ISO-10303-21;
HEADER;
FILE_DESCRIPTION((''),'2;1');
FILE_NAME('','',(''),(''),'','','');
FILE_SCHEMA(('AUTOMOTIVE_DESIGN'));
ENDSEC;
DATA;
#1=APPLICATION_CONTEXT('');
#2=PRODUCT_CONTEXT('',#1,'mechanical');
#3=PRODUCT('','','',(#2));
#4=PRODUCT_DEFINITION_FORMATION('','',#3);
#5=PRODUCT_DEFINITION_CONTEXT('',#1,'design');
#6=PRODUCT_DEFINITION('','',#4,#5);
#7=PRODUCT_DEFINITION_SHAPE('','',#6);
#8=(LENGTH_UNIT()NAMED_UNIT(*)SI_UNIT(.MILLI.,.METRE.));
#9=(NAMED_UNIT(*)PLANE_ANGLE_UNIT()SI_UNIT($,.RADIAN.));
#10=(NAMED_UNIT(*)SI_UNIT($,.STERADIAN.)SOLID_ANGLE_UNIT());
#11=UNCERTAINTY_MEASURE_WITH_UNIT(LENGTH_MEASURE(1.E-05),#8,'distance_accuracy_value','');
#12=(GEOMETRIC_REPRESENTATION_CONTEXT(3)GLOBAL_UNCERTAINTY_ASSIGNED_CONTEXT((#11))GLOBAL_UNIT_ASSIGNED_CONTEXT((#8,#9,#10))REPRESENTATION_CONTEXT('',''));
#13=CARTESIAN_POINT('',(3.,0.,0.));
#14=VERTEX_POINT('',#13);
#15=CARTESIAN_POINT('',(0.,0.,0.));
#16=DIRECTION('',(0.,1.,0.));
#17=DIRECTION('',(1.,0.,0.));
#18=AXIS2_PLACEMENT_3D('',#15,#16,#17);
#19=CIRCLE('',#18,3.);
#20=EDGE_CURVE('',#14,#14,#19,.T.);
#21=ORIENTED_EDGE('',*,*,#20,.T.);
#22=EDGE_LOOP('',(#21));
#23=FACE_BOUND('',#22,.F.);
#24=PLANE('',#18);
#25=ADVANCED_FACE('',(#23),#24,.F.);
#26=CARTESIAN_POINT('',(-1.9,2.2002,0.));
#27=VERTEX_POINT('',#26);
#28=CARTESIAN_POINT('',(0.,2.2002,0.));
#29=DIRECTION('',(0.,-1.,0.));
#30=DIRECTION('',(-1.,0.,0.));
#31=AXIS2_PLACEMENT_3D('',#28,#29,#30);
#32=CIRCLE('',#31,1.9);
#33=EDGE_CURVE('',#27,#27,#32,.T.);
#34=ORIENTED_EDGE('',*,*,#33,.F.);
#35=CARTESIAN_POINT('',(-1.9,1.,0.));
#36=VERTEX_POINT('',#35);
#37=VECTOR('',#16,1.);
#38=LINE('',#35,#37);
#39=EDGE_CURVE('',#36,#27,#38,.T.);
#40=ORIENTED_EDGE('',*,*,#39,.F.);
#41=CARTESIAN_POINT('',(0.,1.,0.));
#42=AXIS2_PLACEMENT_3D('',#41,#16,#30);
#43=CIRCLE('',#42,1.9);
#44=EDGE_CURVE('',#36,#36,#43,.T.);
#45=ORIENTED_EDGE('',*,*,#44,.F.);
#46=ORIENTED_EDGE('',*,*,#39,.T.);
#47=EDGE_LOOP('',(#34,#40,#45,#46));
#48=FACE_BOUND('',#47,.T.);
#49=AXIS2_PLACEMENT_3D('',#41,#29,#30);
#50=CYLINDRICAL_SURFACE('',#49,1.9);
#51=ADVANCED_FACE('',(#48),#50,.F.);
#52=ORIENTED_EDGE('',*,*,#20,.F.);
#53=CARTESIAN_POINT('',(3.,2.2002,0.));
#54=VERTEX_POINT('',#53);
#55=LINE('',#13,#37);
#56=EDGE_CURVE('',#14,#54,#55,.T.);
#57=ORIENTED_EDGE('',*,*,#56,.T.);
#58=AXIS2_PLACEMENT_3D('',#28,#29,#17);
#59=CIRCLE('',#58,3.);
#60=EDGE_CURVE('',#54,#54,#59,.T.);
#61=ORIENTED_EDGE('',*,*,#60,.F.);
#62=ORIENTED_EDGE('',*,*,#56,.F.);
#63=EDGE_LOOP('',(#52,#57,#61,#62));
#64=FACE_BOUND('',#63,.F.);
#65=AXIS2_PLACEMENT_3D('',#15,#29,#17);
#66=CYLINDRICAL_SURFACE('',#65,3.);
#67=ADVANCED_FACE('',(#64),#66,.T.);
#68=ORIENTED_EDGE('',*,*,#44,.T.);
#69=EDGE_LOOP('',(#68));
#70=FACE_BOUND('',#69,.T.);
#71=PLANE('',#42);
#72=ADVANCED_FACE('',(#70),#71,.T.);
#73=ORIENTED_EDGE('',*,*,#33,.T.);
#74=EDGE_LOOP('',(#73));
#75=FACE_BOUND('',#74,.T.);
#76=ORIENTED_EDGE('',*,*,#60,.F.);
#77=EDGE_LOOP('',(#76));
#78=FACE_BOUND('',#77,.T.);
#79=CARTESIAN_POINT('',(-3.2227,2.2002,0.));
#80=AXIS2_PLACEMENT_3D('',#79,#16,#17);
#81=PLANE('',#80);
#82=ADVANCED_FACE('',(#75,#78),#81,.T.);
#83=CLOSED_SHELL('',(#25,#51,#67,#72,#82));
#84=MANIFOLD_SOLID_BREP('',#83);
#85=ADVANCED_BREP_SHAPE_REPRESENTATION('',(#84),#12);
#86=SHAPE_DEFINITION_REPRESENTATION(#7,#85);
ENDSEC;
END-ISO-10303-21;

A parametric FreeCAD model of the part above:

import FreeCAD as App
import Part
import Sketcher

V = App.Vector
Q = App.Units.Quantity


def add_polygon(sketch, points):
    """Adds a closed chain of lines whose ends are joined by coincident constraints."""
    first, n = sketch.GeometryCount, len(points)
    for a, b in zip(points, points[1:] + points[:1]):
        sketch.addGeometry(Part.LineSegment(App.Vector(*a, 0), App.Vector(*b, 0)), False)
    for i in range(n):
        sketch.addConstraint(Sketcher.Constraint("Coincident", first + i, 2, first + (i + 1) % n, 1))

doc = App.newDocument("Part")
body = doc.addObject("PartDesign::Body", "Body")

sketch1 = doc.addObject("Sketcher::SketchObject", "Sketch")
body.addObject(sketch1)
sketch1.AttachmentSupport = (doc.XZ_Plane, [""])
sketch1.MapMode = "FlatFace"
sketch1.addGeometry(Part.Circle(V(0, 0, 0), V(0, 0, 1), 3), False)
sketch1.addConstraint([
    Sketcher.Constraint("Coincident", 0, 3, -1, 1),
    Sketcher.Constraint("Diameter", 0, Q("6 mm")),
])
pad1 = doc.addObject("PartDesign::Pad", "Pad")
body.addObject(pad1)
pad1.Profile = sketch1
pad1.Length = 3
pad1.Reversed = True

sketch2 = doc.addObject("Sketcher::SketchObject", "Sketch001")
body.addObject(sketch2)
sketch2.AttachmentSupport = (doc.XZ_Plane, [""])
sketch2.MapMode = "FlatFace"
sketch2.AttachmentOffset = App.Placement(V(0, 0, -3), App.Rotation())
sketch2.addGeometry(Part.Circle(V(0, 0, 0), V(0, 0, 1), 1.9), False)
sketch2.addConstraint([
    Sketcher.Constraint("Coincident", 0, 3, -1, 1),
    Sketcher.Constraint("Diameter", 0, Q("3.8 mm")),
])
pocket1 = doc.addObject("PartDesign::Pocket", "Pocket")
body.addObject(pocket1)
pocket1.Profile = sketch2
pocket1.Length = 2
pocket1.Reversed = True

sketch3 = doc.addObject("Sketcher::SketchObject", "Sketch002")
body.addObject(sketch3)
sketch3.AttachmentSupport = (doc.XZ_Plane, [""])
sketch3.MapMode = "FlatFace"
sketch3.AttachmentOffset = App.Placement(V(0, 0, -1), App.Rotation())
sketch3.addGeometry([
    Part.Circle(V(0, 0, 0), V(0, 0, 1), 2),
    Part.Circle(V(0, 0, 0), V(0, 0, 1), 1.9),
], False)
sketch3.addConstraint([
    Sketcher.Constraint("Coincident", 0, 3, -1, 1),
    Sketcher.Constraint("Coincident", 1, 3, -1, 1),
    Sketcher.Constraint("Diameter", 0, Q("4 mm")),
    Sketcher.Constraint("Diameter", 1, Q("3.8 mm")),
])
pocket2 = doc.addObject("PartDesign::Pocket", "Pocket001")
body.addObject(pocket2)
pocket2.Profile = sketch3
pocket2.Length = 2.2

sketch4 = doc.addObject("Sketcher::SketchObject", "Sketch003")
body.addObject(sketch4)
sketch4.AttachmentSupport = (doc.XZ_Plane, [""])
sketch4.MapMode = "FlatFace"
sketch4.AttachmentOffset = App.Placement(V(0, 0, -1), App.Rotation())
sketch4.addGeometry([
    Part.Circle(V(0, 0, 0), V(0, 0, 1), 2.1),
    Part.Circle(V(0, 0, 0), V(0, 0, 1), 2),
], False)
sketch4.addConstraint([
    Sketcher.Constraint("Coincident", 0, 3, -1, 1),
    Sketcher.Constraint("Coincident", 1, 3, -1, 1),
    Sketcher.Constraint("Diameter", 0, Q("4.2 mm")),
    Sketcher.Constraint("Diameter", 1, Q("4 mm")),
])
pocket3 = doc.addObject("PartDesign::Pocket", "Pocket002")
body.addObject(pocket3)
pocket3.Profile = sketch4
pocket3.Length = 2.8

sketch5 = doc.addObject("Sketcher::SketchObject", "Sketch004")
body.addObject(sketch5)
sketch5.AttachmentSupport = (doc.XZ_Plane, [""])
sketch5.MapMode = "FlatFace"
sketch5.AttachmentOffset = App.Placement(V(0, 0, -1), App.Rotation())
sketch5.addGeometry([
    Part.Circle(V(0, 0, 0), V(0, 0, 1), 2.1),
    Part.Circle(V(0, 0, 0), V(0, 0, 1), 1.9),
], False)
sketch5.addConstraint([
    Sketcher.Constraint("Coincident", 0, 3, -1, 1),
    Sketcher.Constraint("Coincident", 1, 3, -1, 1),
    Sketcher.Constraint("Diameter", 1, Q("3.8 mm")),
    Sketcher.Constraint("Diameter", 0, Q("4.2 mm")),
])
pad2 = doc.addObject("PartDesign::Pad", "Pad001")
body.addObject(pad2)
pad2.Profile = sketch5
pad2.Length = 2
pad2.Reversed = True

sketch6 = doc.addObject("Sketcher::SketchObject", "Sketch005")
body.addObject(sketch6)
sketch6.AttachmentSupport = (doc.XY_Plane, [""])
sketch6.MapMode = "FlatFace"
add_polygon(sketch6, [(-3.2, 3.7), (-3.2, 2.2), (4, 2.2), (4, 3.7)])
sketch6.addConstraint([
    Sketcher.Constraint("Vertical", 0),
    Sketcher.Constraint("Horizontal", 1),
    Sketcher.Constraint("Vertical", 2),
    Sketcher.Constraint("Horizontal", 3),
    Sketcher.Constraint("DistanceX", 1, 1, 1, 2, Q("7.267 mm")),
    Sketcher.Constraint("DistanceY", 0, 2, 0, 1, Q("1.5155 mm")),
    Sketcher.Constraint("DistanceX", 0, 2, -1, 1, Q("3.2227 mm")),
    Sketcher.Constraint("DistanceY", -1, 1, 0, 2, Q("2.2002 mm")),
])
pocket4 = doc.addObject("PartDesign::Pocket", "Pocket003")
body.addObject(pocket4)
pocket4.Profile = sketch6
pocket4.Type = "ThroughAll"
pocket4.Midplane = True

doc.recompute()
